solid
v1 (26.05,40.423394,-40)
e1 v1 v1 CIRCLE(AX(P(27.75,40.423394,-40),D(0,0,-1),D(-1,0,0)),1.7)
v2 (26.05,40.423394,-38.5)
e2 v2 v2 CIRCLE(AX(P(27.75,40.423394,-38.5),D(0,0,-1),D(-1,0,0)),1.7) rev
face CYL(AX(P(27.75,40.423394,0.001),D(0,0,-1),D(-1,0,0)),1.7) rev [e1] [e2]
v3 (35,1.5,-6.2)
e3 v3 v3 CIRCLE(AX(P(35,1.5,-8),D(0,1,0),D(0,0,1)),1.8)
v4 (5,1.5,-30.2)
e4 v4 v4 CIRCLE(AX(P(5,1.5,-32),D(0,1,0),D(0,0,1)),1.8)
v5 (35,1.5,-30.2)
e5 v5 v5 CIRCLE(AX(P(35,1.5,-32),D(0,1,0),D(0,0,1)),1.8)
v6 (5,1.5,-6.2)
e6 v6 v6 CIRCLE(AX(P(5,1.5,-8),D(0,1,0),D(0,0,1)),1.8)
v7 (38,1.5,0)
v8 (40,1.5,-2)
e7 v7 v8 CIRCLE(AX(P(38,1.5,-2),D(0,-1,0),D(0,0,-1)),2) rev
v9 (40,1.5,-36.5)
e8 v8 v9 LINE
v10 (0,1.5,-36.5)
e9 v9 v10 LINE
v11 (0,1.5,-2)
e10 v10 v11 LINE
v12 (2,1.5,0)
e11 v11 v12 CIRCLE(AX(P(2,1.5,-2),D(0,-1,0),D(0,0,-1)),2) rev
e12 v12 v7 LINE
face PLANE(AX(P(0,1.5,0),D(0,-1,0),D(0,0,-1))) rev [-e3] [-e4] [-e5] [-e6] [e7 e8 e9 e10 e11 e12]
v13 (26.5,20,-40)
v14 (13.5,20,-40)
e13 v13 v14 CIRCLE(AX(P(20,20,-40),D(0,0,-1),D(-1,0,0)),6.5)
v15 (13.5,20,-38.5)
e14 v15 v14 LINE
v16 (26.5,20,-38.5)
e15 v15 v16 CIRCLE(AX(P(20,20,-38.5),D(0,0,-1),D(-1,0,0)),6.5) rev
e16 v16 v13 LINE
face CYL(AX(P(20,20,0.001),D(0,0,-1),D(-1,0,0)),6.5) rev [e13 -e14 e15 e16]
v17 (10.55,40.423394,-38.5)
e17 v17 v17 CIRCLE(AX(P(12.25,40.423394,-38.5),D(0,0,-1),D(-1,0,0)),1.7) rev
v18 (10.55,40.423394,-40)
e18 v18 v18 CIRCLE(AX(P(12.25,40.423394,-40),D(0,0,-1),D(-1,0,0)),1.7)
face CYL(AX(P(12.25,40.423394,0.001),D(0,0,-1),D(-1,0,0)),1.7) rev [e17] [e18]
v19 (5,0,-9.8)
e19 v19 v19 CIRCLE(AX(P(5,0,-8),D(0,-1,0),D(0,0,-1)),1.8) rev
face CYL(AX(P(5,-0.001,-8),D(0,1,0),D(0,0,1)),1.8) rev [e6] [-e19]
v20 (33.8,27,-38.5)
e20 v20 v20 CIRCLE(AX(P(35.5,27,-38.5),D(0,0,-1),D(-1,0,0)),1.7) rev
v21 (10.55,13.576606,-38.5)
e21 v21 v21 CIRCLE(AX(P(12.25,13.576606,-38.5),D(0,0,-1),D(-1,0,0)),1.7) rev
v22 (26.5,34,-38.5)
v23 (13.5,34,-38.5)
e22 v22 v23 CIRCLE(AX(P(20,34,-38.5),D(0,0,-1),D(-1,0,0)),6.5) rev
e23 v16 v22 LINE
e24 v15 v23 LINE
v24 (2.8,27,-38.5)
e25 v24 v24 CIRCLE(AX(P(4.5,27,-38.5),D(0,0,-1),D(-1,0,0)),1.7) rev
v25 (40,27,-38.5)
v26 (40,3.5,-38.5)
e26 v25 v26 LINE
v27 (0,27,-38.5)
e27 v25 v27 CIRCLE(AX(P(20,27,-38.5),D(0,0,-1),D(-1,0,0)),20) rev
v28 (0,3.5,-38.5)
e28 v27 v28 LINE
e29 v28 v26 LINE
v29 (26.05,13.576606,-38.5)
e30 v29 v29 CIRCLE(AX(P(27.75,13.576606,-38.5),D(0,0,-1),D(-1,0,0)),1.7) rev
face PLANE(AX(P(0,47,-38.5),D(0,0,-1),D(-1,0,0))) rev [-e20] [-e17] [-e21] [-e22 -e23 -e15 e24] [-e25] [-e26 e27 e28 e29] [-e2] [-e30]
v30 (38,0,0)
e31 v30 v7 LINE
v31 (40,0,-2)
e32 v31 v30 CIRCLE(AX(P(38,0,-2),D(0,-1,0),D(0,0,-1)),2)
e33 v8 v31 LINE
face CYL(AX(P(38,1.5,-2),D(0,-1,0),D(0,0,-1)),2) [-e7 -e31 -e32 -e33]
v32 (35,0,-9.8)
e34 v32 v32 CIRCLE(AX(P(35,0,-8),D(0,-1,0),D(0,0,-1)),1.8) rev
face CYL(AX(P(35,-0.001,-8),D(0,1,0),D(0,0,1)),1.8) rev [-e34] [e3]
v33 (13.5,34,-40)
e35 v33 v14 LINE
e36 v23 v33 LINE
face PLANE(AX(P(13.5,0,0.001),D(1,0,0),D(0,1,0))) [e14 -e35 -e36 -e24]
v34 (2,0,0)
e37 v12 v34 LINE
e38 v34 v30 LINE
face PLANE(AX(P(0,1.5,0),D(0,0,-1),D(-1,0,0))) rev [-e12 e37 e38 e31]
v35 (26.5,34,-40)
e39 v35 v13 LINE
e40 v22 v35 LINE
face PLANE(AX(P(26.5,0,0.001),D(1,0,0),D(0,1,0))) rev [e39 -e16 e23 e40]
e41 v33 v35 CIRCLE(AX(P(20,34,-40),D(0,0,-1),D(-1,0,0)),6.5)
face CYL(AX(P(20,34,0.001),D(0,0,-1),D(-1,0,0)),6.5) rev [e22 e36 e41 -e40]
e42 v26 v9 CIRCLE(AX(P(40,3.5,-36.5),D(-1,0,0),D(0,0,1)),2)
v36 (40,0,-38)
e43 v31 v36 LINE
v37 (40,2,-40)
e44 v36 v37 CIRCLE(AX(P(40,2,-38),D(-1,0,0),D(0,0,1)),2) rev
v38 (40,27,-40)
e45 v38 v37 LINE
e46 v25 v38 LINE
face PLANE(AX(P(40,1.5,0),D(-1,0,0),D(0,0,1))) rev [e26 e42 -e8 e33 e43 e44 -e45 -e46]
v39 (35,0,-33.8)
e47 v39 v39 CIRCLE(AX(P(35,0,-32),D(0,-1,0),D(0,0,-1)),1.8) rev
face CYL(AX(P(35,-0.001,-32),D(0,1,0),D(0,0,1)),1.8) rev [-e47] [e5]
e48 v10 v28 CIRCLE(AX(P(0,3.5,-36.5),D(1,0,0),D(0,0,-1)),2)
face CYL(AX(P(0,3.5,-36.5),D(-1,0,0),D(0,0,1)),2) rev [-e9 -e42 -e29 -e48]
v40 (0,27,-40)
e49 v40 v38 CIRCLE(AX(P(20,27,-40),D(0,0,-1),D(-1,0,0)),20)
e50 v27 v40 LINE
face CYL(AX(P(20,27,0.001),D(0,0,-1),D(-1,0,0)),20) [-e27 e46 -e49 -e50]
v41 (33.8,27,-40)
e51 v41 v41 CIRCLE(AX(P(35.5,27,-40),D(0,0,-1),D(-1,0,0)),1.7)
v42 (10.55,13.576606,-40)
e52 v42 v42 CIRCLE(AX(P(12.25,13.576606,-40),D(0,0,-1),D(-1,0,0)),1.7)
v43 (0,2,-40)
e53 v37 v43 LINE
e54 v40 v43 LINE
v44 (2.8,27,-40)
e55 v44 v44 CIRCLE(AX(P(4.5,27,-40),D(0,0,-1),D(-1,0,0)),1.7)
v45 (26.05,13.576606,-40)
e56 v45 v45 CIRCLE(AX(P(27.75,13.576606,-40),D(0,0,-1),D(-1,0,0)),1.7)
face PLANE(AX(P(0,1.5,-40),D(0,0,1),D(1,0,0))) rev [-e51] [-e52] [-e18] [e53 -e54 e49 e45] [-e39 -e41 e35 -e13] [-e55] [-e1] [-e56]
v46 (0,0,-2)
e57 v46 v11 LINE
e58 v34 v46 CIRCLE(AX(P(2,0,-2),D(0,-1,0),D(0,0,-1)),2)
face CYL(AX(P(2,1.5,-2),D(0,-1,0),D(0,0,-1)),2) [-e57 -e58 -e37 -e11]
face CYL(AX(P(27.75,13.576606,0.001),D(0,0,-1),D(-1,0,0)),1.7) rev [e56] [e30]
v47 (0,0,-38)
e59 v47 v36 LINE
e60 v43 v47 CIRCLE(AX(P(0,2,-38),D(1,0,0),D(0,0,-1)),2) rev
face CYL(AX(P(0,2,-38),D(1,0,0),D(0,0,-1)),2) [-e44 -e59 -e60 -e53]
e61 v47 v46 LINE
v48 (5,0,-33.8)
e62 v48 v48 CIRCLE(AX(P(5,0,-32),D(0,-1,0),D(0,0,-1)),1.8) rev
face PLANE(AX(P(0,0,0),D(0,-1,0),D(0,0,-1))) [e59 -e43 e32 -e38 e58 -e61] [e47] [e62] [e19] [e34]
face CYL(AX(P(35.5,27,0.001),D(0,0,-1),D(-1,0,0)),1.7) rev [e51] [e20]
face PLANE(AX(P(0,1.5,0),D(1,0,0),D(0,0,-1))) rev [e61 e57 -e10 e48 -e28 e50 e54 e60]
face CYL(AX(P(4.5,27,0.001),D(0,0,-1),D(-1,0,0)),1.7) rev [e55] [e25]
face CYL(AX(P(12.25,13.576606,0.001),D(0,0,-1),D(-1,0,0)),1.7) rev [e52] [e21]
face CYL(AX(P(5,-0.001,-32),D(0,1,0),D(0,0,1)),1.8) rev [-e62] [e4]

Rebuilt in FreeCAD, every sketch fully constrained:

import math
import FreeCAD as App
import Part
import Sketcher
from FreeCAD import Vector


def edges_at(feature, points):
    """Names of the edges that pass closest to the given points."""
    edges = feature.Shape.Edges
    near = lambda p: min(range(len(edges)), key=lambda i: edges[i].distToShape(Part.Vertex(*p))[0])
    return sorted({f"Edge{near(p) + 1}" for p in points})


def add_polygon(sketch, points):
    """Adds a closed chain of lines whose ends are joined by coincident constraints."""
    first, n = sketch.GeometryCount, len(points)
    for a, b in zip(points, points[1:] + points[:1]):
        sketch.addGeometry(Part.LineSegment(App.Vector(*a, 0), App.Vector(*b, 0)), False)
    for i in range(n):
        sketch.addConstraint(Sketcher.Constraint("Coincident", first + i, 2, first + (i + 1) % n, 1))

doc = App.newDocument("Part")
body = doc.addObject("PartDesign::Body", "Body")

# Sketch on XZ plane
sketch1 = doc.addObject("Sketcher::SketchObject", "Sketch")
body.addObject(sketch1)
sketch1.AttachmentSupport = (doc.XZ_Plane, [""])
sketch1.MapMode = "FlatFace"
add_polygon(sketch1, [(0, -40), (0, 0), (40, 0), (40, -40)])  # lines 0-3
sketch1.addConstraint([
    Sketcher.Constraint("Vertical", 0),
    Sketcher.Constraint("Horizontal", 1),
    Sketcher.Constraint("Vertical", 2),
    Sketcher.Constraint("Horizontal", 3),
    Sketcher.Constraint("Coincident", 0, 2, -1, 1),
    Sketcher.Constraint("Equal", 3, 0),
    Sketcher.Constraint("DistanceX", 1, 1, 1, 2, 40.0),
])
pad1 = doc.addObject("PartDesign::Pad", "Pad")
body.addObject(pad1)
pad1.Profile = sketch1
pad1.Length = 1.5
pad1.Reversed = True

# Sketch on XZ plane
sketch2 = doc.addObject("Sketcher::SketchObject", "Sketch001")
body.addObject(sketch2)
sketch2.AttachmentSupport = (doc.XZ_Plane, [""])
sketch2.MapMode = "FlatFace"
sketch2.AttachmentOffset = App.Placement(Vector(0, 0, -1.5), App.Rotation())
add_polygon(sketch2, [(0, -40), (0, -38.5), (40, -38.5), (40, -40)])  # lines 0-3
sketch2.addConstraint([
    Sketcher.Constraint("Vertical", 0),
    Sketcher.Constraint("Horizontal", 1),
    Sketcher.Constraint("Vertical", 2),
    Sketcher.Constraint("Horizontal", 3),
    Sketcher.Constraint("PointOnObject", 0, 2, -2),
    Sketcher.Constraint("DistanceX", 1, 1, 1, 2, 40.0),
    Sketcher.Constraint("DistanceY", 0, 1, 0, 2, 1.5),
    Sketcher.Constraint("DistanceY", 2, 2, -1, 1, 40.0),
])
pad2 = doc.addObject("PartDesign::Pad", "Pad001")
body.addObject(pad2)
pad2.Profile = sketch2
pad2.Length = 45.5
pad2.Reversed = True

# Sketch on XY plane
sketch3 = doc.addObject("Sketcher::SketchObject", "Sketch002")
body.addObject(sketch3)
sketch3.AttachmentSupport = (doc.XY_Plane, [""])
sketch3.MapMode = "FlatFace"
sketch3.AttachmentOffset = App.Placement(Vector(0, 0, -40), App.Rotation())
sketch3.addGeometry([
    Part.LineSegment(Vector(14, 20, 0), Vector(14, 34, 0)),
    Part.ArcOfCircle(Part.Circle(Vector(20, 34, 0), Vector(0, 0, 1), 6), math.radians(0), math.radians(180)),
    Part.LineSegment(Vector(26, 34, 0), Vector(26, 20, 0)),
    Part.ArcOfCircle(Part.Circle(Vector(20, 20, 0), Vector(0, 0, 1), 6), math.radians(180), math.radians(360)),
], False)
sketch3.addConstraint([
    Sketcher.Constraint("Tangent", 0, 2, 1, 2),
    Sketcher.Constraint("Tangent", 1, 1, 2, 1),
    Sketcher.Constraint("Tangent", 2, 2, 3, 2),
    Sketcher.Constraint("Tangent", 3, 1, 0, 1),
    Sketcher.Constraint("Vertical", 0),
    Sketcher.Constraint("Vertical", 2),
    Sketcher.Constraint("Radius", 1, 6.5),
    Sketcher.Constraint("DistanceY", 0, 1, 0, 2, 14.0),
    Sketcher.Constraint("DistanceX", -1, 1, 1, 3, 20.0),
    Sketcher.Constraint("DistanceY", -1, 1, 1, 3, 34.0),
])
pocket1 = doc.addObject("PartDesign::Pocket", "Pocket")
body.addObject(pocket1)
pocket1.Profile = sketch3
pocket1.Type = "UpToFirst"
pocket1.Reversed = True

# Sketch on XY plane
sketch4 = doc.addObject("Sketcher::SketchObject", "Sketch003")
body.addObject(sketch4)
sketch4.AttachmentSupport = (doc.XY_Plane, [""])
sketch4.MapMode = "FlatFace"
sketch4.AttachmentOffset = App.Placement(Vector(0, 0, -40), App.Rotation())
sketch4.addGeometry([
    Part.LineSegment(Vector(20, 47, 0), Vector(40, 47, 0)),
    Part.LineSegment(Vector(40, 47, 0), Vector(40, 27, 0)),
    Part.ArcOfCircle(Part.Circle(Vector(20, 27, 0), Vector(0, 0, 1), 20), math.radians(0), math.radians(90)),
], False)
sketch4.addConstraint([
    Sketcher.Constraint("Coincident", 0, 2, 1, 1),
    Sketcher.Constraint("Tangent", 1, 2, 2, 1),
    Sketcher.Constraint("Tangent", 2, 2, 0, 1),
    Sketcher.Constraint("Horizontal", 0),
    Sketcher.Constraint("Vertical", 1),
    Sketcher.Constraint("Radius", 2, 20.0),
    Sketcher.Constraint("DistanceX", -1, 1, 2, 3, 20.0),
    Sketcher.Constraint("DistanceY", -1, 1, 2, 3, 27.0),
])
pocket2 = doc.addObject("PartDesign::Pocket", "Pocket001")
body.addObject(pocket2)
pocket2.Profile = sketch4
pocket2.Type = "UpToFirst"
pocket2.Reversed = True

# Sketch on XY plane
sketch5 = doc.addObject("Sketcher::SketchObject", "Sketch004")
body.addObject(sketch5)
sketch5.AttachmentSupport = (doc.XY_Plane, [""])
sketch5.MapMode = "FlatFace"
sketch5.AttachmentOffset = App.Placement(Vector(0, 0, -40), App.Rotation())
sketch5.addGeometry([
    Part.LineSegment(Vector(0, 47, 0), Vector(20, 47, 0)),
    Part.ArcOfCircle(Part.Circle(Vector(20, 27, 0), Vector(0, 0, 1), 20), math.radians(90), math.radians(180)),
    Part.LineSegment(Vector(0, 27, 0), Vector(0, 47, 0)),
], False)
sketch5.addConstraint([
    Sketcher.Constraint("Tangent", 0, 2, 1, 1),
    Sketcher.Constraint("Tangent", 1, 2, 2, 1),
    Sketcher.Constraint("Coincident", 2, 2, 0, 1),
    Sketcher.Constraint("Horizontal", 0),
    Sketcher.Constraint("Vertical", 2),
    Sketcher.Constraint("PointOnObject", 1, 2, -2),
    Sketcher.Constraint("Radius", 1, 20.0),
    Sketcher.Constraint("DistanceY", -1, 1, 1, 3, 27.0),
])
pocket3 = doc.addObject("PartDesign::Pocket", "Pocket002")
body.addObject(pocket3)
pocket3.Profile = sketch5
pocket3.Type = "UpToFirst"
pocket3.Reversed = True

# Sketch on XY plane
sketch6 = doc.addObject("Sketcher::SketchObject", "Sketch005")
body.addObject(sketch6)
sketch6.AttachmentSupport = (doc.XY_Plane, [""])
sketch6.MapMode = "FlatFace"
sketch6.AttachmentOffset = App.Placement(Vector(0, 0, -40), App.Rotation())
sketch6.addGeometry(Part.Circle(Vector(35.5, 27, 0), Vector(0, 0, 1), 1.7), False)
sketch6.addConstraint([
    Sketcher.Constraint("Diameter", 0, 3.4),
    Sketcher.Constraint("DistanceY", -1, 1, 0, 3, 27.0),
    Sketcher.Constraint("DistanceX", -1, 1, 0, 3, 35.5),
])
pocket4 = doc.addObject("PartDesign::Pocket", "Pocket003")
body.addObject(pocket4)
pocket4.Profile = sketch6
pocket4.Type = "UpToFirst"
pocket4.Reversed = True

# Sketch on XY plane
sketch7 = doc.addObject("Sketcher::SketchObject", "Sketch006")
body.addObject(sketch7)
sketch7.AttachmentSupport = (doc.XY_Plane, [""])
sketch7.MapMode = "FlatFace"
sketch7.AttachmentOffset = App.Placement(Vector(0, 0, -40), App.Rotation())
sketch7.addGeometry(Part.Circle(Vector(27.8, 40.4, 0), Vector(0, 0, 1), 1.7), False)
sketch7.addConstraint([
    Sketcher.Constraint("Diameter", 0, 3.4),
    Sketcher.Constraint("DistanceX", -1, 1, 0, 3, 27.75),
    Sketcher.Constraint("DistanceY", -1, 1, 0, 3, 40.423394),
])
pocket5 = doc.addObject("PartDesign::Pocket", "Pocket004")
body.addObject(pocket5)
pocket5.Profile = sketch7
pocket5.Type = "UpToFirst"
pocket5.Reversed = True

# Sketch on XY plane
sketch8 = doc.addObject("Sketcher::SketchObject", "Sketch007")
body.addObject(sketch8)
sketch8.AttachmentSupport = (doc.XY_Plane, [""])
sketch8.MapMode = "FlatFace"
sketch8.AttachmentOffset = App.Placement(Vector(0, 0, -40), App.Rotation())
sketch8.addGeometry(Part.Circle(Vector(12.2, 40.4, 0), Vector(0, 0, 1), 1.7), False)
sketch8.addConstraint([
    Sketcher.Constraint("Diameter", 0, 3.4),
    Sketcher.Constraint("DistanceX", -1, 1, 0, 3, 12.25),
    Sketcher.Constraint("DistanceY", -1, 1, 0, 3, 40.423394),
])
pocket6 = doc.addObject("PartDesign::Pocket", "Pocket005")
body.addObject(pocket6)
pocket6.Profile = sketch8
pocket6.Type = "UpToFirst"
pocket6.Reversed = True

# Sketch on XY plane
sketch9 = doc.addObject("Sketcher::SketchObject", "Sketch008")
body.addObject(sketch9)
sketch9.AttachmentSupport = (doc.XY_Plane, [""])
sketch9.MapMode = "FlatFace"
sketch9.AttachmentOffset = App.Placement(Vector(0, 0, -40), App.Rotation())
sketch9.addGeometry(Part.Circle(Vector(4.5, 27, 0), Vector(0, 0, 1), 1.7), False)
sketch9.addConstraint([
    Sketcher.Constraint("Diameter", 0, 3.4),
    Sketcher.Constraint("DistanceY", -1, 1, 0, 3, 27.0),
    Sketcher.Constraint("DistanceX", -1, 1, 0, 3, 4.5),
])
pocket7 = doc.addObject("PartDesign::Pocket", "Pocket006")
body.addObject(pocket7)
pocket7.Profile = sketch9
pocket7.Type = "UpToFirst"
pocket7.Reversed = True

# Sketch on XY plane
sketch10 = doc.addObject("Sketcher::SketchObject", "Sketch009")
body.addObject(sketch10)
sketch10.AttachmentSupport = (doc.XY_Plane, [""])
sketch10.MapMode = "FlatFace"
sketch10.AttachmentOffset = App.Placement(Vector(0, 0, -40), App.Rotation())
sketch10.addGeometry(Part.Circle(Vector(12.2, 13.6, 0), Vector(0, 0, 1), 1.7), False)
sketch10.addConstraint([
    Sketcher.Constraint("Diameter", 0, 3.4),
    Sketcher.Constraint("DistanceX", -1, 1, 0, 3, 12.25),
    Sketcher.Constraint("DistanceY", -1, 1, 0, 3, 13.576606),
])
pocket8 = doc.addObject("PartDesign::Pocket", "Pocket007")
body.addObject(pocket8)
pocket8.Profile = sketch10
pocket8.Type = "UpToFirst"
pocket8.Reversed = True

# Sketch on XY plane
sketch11 = doc.addObject("Sketcher::SketchObject", "Sketch010")
body.addObject(sketch11)
sketch11.AttachmentSupport = (doc.XY_Plane, [""])
sketch11.MapMode = "FlatFace"
sketch11.AttachmentOffset = App.Placement(Vector(0, 0, -40), App.Rotation())
sketch11.addGeometry(Part.Circle(Vector(27.8, 13.6, 0), Vector(0, 0, 1), 1.7), False)
sketch11.addConstraint([
    Sketcher.Constraint("Diameter", 0, 3.4),
    Sketcher.Constraint("DistanceX", -1, 1, 0, 3, 27.75),
    Sketcher.Constraint("DistanceY", -1, 1, 0, 3, 13.576606),
])
pocket9 = doc.addObject("PartDesign::Pocket", "Pocket008")
body.addObject(pocket9)
pocket9.Profile = sketch11
pocket9.Type = "UpToFirst"
pocket9.Reversed = True

# Sketch on XZ plane
sketch12 = doc.addObject("Sketcher::SketchObject", "Sketch011")
body.addObject(sketch12)
sketch12.AttachmentSupport = (doc.XZ_Plane, [""])
sketch12.MapMode = "FlatFace"
sketch12.AttachmentOffset = App.Placement(Vector(0, 0, -1.5), App.Rotation())
sketch12.addGeometry(Part.Circle(Vector(5, -32, 0), Vector(0, 0, 1), 1.8), False)
sketch12.addConstraint([
    Sketcher.Constraint("Diameter", 0, 3.6),
    Sketcher.Constraint("DistanceX", -1, 1, 0, 3, 5.0),
    Sketcher.Constraint("DistanceY", 0, 3, -1, 1, 32.0),
])
pocket10 = doc.addObject("PartDesign::Pocket", "Pocket009")
body.addObject(pocket10)
pocket10.Profile = sketch12
pocket10.Type = "UpToFirst"
pocket10.Reversed = True

# Sketch on XZ plane
sketch13 = doc.addObject("Sketcher::SketchObject", "Sketch012")
body.addObject(sketch13)
sketch13.AttachmentSupport = (doc.XZ_Plane, [""])
sketch13.MapMode = "FlatFace"
sketch13.AttachmentOffset = App.Placement(Vector(0, 0, -1.5), App.Rotation())
sketch13.addGeometry(Part.Circle(Vector(35, -32, 0), Vector(0, 0, 1), 1.8), False)
sketch13.addConstraint([
    Sketcher.Constraint("Diameter", 0, 3.6),
    Sketcher.Constraint("DistanceX", -1, 1, 0, 3, 35.0),
    Sketcher.Constraint("DistanceY", 0, 3, -1, 1, 32.0),
])
pocket11 = doc.addObject("PartDesign::Pocket", "Pocket010")
body.addObject(pocket11)
pocket11.Profile = sketch13
pocket11.Type = "UpToFirst"
pocket11.Reversed = True

# Sketch on XZ plane
sketch14 = doc.addObject("Sketcher::SketchObject", "Sketch013")
body.addObject(sketch14)
sketch14.AttachmentSupport = (doc.XZ_Plane, [""])
sketch14.MapMode = "FlatFace"
sketch14.AttachmentOffset = App.Placement(Vector(0, 0, -1.5), App.Rotation())
sketch14.addGeometry(Part.Circle(Vector(35, -8, 0), Vector(0, 0, 1), 1.8), False)
sketch14.addConstraint([
    Sketcher.Constraint("Diameter", 0, 3.6),
    Sketcher.Constraint("DistanceX", -1, 1, 0, 3, 35.0),
    Sketcher.Constraint("DistanceY", 0, 3, -1, 1, 8.0),
])
pocket12 = doc.addObject("PartDesign::Pocket", "Pocket011")
body.addObject(pocket12)
pocket12.Profile = sketch14
pocket12.Type = "UpToFirst"
pocket12.Reversed = True

# Sketch on XZ plane
sketch15 = doc.addObject("Sketcher::SketchObject", "Sketch014")
body.addObject(sketch15)
sketch15.AttachmentSupport = (doc.XZ_Plane, [""])
sketch15.MapMode = "FlatFace"
sketch15.AttachmentOffset = App.Placement(Vector(0, 0, -1.5), App.Rotation())
sketch15.addGeometry(Part.Circle(Vector(5, -8, 0), Vector(0, 0, 1), 1.8), False)
sketch15.addConstraint([
    Sketcher.Constraint("Diameter", 0, 3.6),
    Sketcher.Constraint("DistanceX", -1, 1, 0, 3, 5.0),
    Sketcher.Constraint("DistanceY", 0, 3, -1, 1, 8.0),
])
pocket13 = doc.addObject("PartDesign::Pocket", "Pocket012")
body.addObject(pocket13)
pocket13.Profile = sketch15
pocket13.Type = "UpToFirst"
pocket13.Reversed = True
doc.recompute()

fillet = doc.addObject("PartDesign::Fillet", "Fillet")
body.addObject(fillet)
fillet.Base = (pocket13, edges_at(pocket13, [
    (20, 1.5, -38.5),
    (20, 0, -40),
    (40, 0.75, 0),
    (0, 0.75, 0),
]))
fillet.Radius = 2

doc.recompute()
